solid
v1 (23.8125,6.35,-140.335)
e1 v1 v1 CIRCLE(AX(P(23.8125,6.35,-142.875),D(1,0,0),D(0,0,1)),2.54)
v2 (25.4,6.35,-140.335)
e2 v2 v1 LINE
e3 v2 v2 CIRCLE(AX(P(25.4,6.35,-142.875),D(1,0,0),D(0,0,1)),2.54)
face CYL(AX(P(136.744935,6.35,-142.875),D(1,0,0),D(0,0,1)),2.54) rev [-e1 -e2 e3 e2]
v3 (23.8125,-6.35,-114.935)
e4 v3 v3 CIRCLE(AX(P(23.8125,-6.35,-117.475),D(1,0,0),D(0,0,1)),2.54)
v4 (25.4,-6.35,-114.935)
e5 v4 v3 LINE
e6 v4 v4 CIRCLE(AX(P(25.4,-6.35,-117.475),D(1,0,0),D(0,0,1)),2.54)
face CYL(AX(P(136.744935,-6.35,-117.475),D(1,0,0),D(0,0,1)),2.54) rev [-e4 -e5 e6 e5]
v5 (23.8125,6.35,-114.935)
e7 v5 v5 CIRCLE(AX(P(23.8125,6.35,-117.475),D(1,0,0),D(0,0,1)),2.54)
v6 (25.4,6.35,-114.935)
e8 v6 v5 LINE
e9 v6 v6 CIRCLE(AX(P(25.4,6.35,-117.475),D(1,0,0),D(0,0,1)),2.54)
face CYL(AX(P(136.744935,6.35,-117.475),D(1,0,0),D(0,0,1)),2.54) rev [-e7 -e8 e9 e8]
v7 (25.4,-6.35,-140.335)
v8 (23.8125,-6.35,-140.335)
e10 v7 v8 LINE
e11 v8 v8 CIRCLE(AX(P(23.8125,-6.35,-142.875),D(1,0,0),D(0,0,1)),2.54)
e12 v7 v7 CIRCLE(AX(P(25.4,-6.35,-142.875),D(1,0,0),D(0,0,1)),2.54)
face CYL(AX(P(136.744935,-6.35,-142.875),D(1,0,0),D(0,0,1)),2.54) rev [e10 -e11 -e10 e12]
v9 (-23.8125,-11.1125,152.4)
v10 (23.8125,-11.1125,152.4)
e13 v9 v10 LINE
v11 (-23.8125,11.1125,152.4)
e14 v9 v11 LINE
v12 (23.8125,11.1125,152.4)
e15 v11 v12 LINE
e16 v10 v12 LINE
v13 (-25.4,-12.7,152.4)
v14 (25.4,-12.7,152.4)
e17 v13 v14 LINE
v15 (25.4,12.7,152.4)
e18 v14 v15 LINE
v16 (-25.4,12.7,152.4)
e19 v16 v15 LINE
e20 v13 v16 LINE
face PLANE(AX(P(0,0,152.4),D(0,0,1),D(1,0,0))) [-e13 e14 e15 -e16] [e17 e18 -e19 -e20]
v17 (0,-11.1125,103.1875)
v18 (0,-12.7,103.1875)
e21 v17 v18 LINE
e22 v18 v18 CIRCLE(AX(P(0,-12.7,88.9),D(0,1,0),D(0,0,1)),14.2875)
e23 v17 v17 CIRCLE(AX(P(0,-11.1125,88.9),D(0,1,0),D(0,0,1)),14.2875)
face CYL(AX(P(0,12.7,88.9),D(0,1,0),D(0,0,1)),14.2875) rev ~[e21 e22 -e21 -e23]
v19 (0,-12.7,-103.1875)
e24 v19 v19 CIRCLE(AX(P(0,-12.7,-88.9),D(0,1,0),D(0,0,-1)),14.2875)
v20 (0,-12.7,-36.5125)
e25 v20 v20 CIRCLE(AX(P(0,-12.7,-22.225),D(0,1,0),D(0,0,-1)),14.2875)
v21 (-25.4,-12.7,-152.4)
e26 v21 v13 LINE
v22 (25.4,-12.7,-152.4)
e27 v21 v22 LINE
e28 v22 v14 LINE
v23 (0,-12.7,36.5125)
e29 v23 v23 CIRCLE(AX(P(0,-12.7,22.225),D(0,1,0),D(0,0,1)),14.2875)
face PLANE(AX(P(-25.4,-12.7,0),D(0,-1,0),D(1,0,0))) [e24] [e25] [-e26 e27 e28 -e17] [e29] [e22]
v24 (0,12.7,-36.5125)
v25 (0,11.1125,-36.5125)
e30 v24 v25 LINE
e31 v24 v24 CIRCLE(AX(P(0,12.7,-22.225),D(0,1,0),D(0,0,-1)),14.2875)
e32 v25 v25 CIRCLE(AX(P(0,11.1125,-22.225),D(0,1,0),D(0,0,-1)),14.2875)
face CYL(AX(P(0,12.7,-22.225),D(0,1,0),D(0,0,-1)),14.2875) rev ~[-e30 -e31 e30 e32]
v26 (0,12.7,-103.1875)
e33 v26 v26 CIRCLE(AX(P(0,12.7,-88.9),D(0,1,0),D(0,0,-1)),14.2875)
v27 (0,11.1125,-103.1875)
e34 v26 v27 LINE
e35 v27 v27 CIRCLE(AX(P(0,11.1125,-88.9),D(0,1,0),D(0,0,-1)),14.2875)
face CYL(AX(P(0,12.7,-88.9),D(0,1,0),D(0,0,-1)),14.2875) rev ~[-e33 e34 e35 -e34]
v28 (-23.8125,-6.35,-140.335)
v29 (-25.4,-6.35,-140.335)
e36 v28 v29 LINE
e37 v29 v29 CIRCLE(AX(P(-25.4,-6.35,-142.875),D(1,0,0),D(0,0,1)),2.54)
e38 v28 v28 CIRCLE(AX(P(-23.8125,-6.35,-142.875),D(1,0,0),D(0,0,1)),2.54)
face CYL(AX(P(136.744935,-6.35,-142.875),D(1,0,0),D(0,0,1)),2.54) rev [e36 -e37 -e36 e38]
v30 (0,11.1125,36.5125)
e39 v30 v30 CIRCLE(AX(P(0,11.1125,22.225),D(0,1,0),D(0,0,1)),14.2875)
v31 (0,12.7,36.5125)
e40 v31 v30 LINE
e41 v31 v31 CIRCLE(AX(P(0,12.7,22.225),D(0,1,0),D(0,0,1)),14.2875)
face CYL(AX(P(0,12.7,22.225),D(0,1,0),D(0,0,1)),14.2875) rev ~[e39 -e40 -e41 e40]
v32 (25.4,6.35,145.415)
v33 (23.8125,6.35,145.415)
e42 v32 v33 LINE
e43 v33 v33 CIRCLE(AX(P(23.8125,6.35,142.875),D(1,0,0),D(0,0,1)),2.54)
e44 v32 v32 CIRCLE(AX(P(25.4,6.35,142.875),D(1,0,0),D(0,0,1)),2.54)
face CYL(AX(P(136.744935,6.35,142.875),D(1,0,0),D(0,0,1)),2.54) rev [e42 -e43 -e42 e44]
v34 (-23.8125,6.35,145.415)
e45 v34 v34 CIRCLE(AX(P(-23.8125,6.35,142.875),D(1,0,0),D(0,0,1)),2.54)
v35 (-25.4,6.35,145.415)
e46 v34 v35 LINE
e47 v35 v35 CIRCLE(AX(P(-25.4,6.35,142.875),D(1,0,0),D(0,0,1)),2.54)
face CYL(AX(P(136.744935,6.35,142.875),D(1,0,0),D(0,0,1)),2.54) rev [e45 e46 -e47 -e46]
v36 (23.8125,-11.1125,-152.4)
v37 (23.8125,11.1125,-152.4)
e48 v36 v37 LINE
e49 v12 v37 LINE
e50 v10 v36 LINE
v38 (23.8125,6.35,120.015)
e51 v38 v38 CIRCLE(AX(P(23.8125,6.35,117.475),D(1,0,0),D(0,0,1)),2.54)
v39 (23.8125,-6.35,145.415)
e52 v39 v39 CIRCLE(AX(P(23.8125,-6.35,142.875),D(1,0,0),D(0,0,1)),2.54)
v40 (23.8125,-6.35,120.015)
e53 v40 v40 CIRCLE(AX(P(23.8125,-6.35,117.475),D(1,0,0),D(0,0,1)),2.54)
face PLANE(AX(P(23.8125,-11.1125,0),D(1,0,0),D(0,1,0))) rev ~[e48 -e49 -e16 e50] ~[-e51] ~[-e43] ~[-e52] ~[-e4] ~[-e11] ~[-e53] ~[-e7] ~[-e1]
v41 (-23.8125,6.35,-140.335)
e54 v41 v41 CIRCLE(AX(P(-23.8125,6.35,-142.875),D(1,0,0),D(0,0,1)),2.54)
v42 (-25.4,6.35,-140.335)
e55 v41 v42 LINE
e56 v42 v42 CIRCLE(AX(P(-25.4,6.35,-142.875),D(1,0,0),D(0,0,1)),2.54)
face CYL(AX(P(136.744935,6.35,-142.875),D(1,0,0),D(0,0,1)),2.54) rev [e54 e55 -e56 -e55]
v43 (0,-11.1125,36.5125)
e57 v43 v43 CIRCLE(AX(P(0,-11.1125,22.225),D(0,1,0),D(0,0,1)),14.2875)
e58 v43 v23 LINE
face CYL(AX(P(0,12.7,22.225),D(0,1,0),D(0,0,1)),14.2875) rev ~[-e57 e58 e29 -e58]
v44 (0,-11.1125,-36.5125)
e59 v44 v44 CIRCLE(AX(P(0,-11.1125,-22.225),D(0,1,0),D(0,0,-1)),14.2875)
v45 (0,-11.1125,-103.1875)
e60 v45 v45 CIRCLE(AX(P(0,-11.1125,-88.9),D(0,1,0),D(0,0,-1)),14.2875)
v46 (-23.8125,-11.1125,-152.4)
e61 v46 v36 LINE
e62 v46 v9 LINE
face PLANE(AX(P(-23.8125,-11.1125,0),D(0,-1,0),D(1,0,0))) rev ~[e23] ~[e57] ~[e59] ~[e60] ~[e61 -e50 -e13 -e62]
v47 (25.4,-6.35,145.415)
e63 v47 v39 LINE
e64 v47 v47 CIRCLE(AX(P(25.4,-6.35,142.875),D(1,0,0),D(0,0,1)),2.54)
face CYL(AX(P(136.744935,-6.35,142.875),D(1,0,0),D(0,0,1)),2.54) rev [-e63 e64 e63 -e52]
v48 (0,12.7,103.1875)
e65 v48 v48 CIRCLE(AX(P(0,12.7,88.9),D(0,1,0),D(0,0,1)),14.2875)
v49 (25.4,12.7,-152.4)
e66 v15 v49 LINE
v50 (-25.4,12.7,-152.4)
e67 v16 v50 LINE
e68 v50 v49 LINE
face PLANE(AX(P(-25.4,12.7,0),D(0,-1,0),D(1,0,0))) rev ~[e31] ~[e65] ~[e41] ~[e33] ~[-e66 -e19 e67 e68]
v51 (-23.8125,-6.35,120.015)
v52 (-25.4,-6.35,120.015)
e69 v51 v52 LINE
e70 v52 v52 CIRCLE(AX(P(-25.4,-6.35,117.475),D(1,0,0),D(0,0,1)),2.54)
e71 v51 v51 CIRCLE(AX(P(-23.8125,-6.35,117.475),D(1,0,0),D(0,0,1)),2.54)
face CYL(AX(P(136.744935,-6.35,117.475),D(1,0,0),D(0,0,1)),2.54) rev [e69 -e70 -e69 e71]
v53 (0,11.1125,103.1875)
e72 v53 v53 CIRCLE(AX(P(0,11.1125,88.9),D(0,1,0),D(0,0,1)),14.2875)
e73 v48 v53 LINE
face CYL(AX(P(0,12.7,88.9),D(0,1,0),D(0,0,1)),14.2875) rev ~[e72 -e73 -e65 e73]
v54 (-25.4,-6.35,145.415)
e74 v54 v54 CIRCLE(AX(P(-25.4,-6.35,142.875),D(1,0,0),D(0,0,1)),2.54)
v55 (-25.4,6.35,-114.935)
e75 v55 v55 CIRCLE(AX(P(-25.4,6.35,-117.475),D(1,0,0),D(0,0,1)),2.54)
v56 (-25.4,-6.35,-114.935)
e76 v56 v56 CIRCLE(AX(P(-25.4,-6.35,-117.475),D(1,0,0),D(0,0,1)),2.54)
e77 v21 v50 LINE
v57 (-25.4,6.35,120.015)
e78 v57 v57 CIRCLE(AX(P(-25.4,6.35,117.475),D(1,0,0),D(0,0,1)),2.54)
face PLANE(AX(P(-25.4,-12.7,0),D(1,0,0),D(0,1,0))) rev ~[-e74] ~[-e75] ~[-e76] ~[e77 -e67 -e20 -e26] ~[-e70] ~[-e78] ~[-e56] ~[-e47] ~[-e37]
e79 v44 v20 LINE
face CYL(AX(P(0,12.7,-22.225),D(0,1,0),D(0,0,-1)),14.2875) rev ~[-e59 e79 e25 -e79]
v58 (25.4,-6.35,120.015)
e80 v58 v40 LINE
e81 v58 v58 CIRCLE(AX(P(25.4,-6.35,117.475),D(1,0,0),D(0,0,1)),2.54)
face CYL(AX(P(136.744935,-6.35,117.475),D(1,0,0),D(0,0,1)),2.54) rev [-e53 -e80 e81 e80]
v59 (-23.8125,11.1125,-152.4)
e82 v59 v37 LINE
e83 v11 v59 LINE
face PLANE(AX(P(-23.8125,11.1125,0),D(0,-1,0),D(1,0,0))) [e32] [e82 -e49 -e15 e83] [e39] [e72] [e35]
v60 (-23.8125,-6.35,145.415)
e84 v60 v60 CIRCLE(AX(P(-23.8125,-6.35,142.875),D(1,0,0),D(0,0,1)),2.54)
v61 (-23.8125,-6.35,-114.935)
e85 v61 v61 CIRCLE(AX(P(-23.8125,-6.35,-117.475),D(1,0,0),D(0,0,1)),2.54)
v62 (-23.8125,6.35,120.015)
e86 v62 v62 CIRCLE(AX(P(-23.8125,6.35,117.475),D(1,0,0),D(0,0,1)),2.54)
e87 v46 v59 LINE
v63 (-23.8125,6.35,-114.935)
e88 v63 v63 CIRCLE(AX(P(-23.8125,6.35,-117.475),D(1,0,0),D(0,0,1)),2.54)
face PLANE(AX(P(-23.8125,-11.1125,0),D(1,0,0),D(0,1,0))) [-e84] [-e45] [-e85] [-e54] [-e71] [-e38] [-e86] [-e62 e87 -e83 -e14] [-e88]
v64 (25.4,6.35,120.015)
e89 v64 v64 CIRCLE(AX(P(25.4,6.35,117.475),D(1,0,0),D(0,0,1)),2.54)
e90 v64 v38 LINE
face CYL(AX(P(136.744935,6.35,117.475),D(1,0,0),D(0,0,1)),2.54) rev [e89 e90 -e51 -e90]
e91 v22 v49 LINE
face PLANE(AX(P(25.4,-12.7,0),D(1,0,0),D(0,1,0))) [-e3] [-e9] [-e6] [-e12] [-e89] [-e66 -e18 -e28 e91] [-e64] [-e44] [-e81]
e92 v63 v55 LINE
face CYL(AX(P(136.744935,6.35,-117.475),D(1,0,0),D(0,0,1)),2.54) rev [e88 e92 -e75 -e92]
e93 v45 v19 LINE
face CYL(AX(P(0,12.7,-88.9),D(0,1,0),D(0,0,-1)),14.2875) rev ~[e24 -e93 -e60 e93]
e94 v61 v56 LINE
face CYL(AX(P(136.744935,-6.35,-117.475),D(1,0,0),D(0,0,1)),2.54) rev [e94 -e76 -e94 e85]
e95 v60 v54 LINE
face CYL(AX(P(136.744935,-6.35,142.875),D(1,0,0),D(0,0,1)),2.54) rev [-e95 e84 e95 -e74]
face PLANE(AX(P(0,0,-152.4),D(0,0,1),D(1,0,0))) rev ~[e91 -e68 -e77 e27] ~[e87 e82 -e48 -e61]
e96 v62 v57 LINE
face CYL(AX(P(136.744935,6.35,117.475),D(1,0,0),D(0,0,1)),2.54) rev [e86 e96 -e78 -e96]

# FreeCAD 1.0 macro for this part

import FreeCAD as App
import Part
import Sketcher

V = App.Vector
Q = App.Units.Quantity

doc = App.newDocument("Part")
body = doc.addObject("PartDesign::Body", "Body")

sketch1 = body.newObject("Sketcher::SketchObject", "Sketch")
sketch1.AttachmentSupport = (doc.getObject("XY_Plane"), [""])
sketch1.MapMode = "FlatFace"
sketch1.addGeometry([
    Part.LineSegment(V(-25.4, 12.7, 0), V(-25.4, -12.7, 0)),
    Part.LineSegment(V(-25.4, -12.7, 0), V(25.4, -12.7, 0)),
    Part.LineSegment(V(25.4, -12.7, 0), V(25.4, 12.7, 0)),
    Part.LineSegment(V(25.4, 12.7, 0), V(-25.4, 12.7, 0)),
    Part.LineSegment(V(23.8125, -11.1125, 0), V(-23.8125, -11.1125, 0)),
    Part.LineSegment(V(-23.8125, -11.1125, 0), V(-23.8125, 11.1125, 0)),
    Part.LineSegment(V(-23.8125, 11.1125, 0), V(23.8125, 11.1125, 0)),
    Part.LineSegment(V(23.8125, 11.1125, 0), V(23.8125, -11.1125, 0)),
], False)
sketch1.addConstraint([
    Sketcher.Constraint("Coincident", 0, 2, 1, 1),
    Sketcher.Constraint("Coincident", 1, 2, 2, 1),
    Sketcher.Constraint("Coincident", 2, 2, 3, 1),
    Sketcher.Constraint("Coincident", 3, 2, 0, 1),
    Sketcher.Constraint("Coincident", 4, 2, 5, 1),
    Sketcher.Constraint("Coincident", 5, 2, 6, 1),
    Sketcher.Constraint("Coincident", 6, 2, 7, 1),
    Sketcher.Constraint("Coincident", 7, 2, 4, 1),
    Sketcher.Constraint("Vertical", 0),
    Sketcher.Constraint("Horizontal", 1),
    Sketcher.Constraint("Vertical", 2),
    Sketcher.Constraint("Horizontal", 3),
    Sketcher.Constraint("Horizontal", 4),
    Sketcher.Constraint("Vertical", 5),
    Sketcher.Constraint("Horizontal", 6),
    Sketcher.Constraint("Vertical", 7),
    Sketcher.Constraint("Symmetric", 0, 2, 2, 2, -1, 1),
    Sketcher.Constraint("Symmetric", 4, 2, 6, 2, -1, 1),
    Sketcher.Constraint("DistanceX", 1, 1, 1, 2, Q("2 in")),
    Sketcher.Constraint("DistanceY", 0, 2, 0, 1, Q("1 in")),
    Sketcher.Constraint("DistanceX", 4, 2, 4, 1, Q("1.875 in")),
    Sketcher.Constraint("DistanceY", 5, 1, 5, 2, Q("0.875 in")),
])
pad1 = body.newObject("PartDesign::Pad", "Pad")
pad1.Profile = sketch1
pad1.Length = Q("12 in")
pad1.Midplane = True

sketch2 = body.newObject("Sketcher::SketchObject", "Sketch001")
sketch2.AttachmentSupport = (doc.getObject("XZ_Plane"), [""])
sketch2.MapMode = "FlatFace"
sketch2.AttachmentOffset = App.Placement(V(0, 0, -0.5 * 25.4), App.Rotation())
sketch2.addGeometry([
    Part.Circle(V(0, 88.9, 0), V(0, 0, 1), 14.2875),
    Part.Circle(V(0, 22.225, 0), V(0, 0, 1), 14.2875),
    Part.Circle(V(0, -22.225, 0), V(0, 0, 1), 14.2875),
    Part.Circle(V(0, -88.9, 0), V(0, 0, 1), 14.2875),
], False)
sketch2.addConstraint([
    Sketcher.Constraint("Equal", 0, 1),
    Sketcher.Constraint("Equal", 1, 2),
    Sketcher.Constraint("Equal", 2, 3),
    Sketcher.Constraint("Symmetric", 1, 3, 2, 3, -1, 1),
    Sketcher.Constraint("Symmetric", 0, 3, 3, 3, -1, 1),
    Sketcher.Constraint("PointOnObject", 0, 3, -2),
    Sketcher.Constraint("PointOnObject", 1, 3, -2),
    Sketcher.Constraint("Diameter", 0, Q("1.125 in")),
    Sketcher.Constraint("DistanceY", 3, 3, 0, 3, Q("7 in")),
    Sketcher.Constraint("DistanceY", 2, 3, 1, 3, Q("1.75 in")),
])
pocket1 = body.newObject("PartDesign::Pocket", "Pocket")
pocket1.Profile = sketch2
pocket1.Type = "ThroughAll"
pocket1.Reversed = True

sketch3 = body.newObject("Sketcher::SketchObject", "Sketch002")
sketch3.AttachmentSupport = (doc.getObject("YZ_Plane"), [""])
sketch3.MapMode = "FlatFace"
sketch3.AttachmentOffset = App.Placement(V(0, 0, -1 * 25.4), App.Rotation())
sketch3.addGeometry([
    Part.Circle(V(6.35, -142.875, 0), V(0, 0, 1), 2.54),
    Part.Circle(V(-6.35, -142.875, 0), V(0, 0, 1), 2.54),
    Part.Circle(V(6.35, -117.475, 0), V(0, 0, 1), 2.54),
    Part.Circle(V(-6.35, -117.475, 0), V(0, 0, 1), 2.54),
    Part.Circle(V(-6.35, 117.475, 0), V(0, 0, 1), 2.54),
    Part.Circle(V(6.35, 117.475, 0), V(0, 0, 1), 2.54),
    Part.Circle(V(-6.35, 142.875, 0), V(0, 0, 1), 2.54),
    Part.Circle(V(6.35, 142.875, 0), V(0, 0, 1), 2.54),
], False)
sketch3.addConstraint([
    Sketcher.Constraint("Equal", 0, 1),
    Sketcher.Constraint("Equal", 1, 2),
    Sketcher.Constraint("Equal", 2, 3),
    Sketcher.Constraint("Equal", 3, 4),
    Sketcher.Constraint("Equal", 4, 5),
    Sketcher.Constraint("Equal", 5, 6),
    Sketcher.Constraint("Equal", 6, 7),
    Sketcher.Constraint("Symmetric", 2, 3, 4, 3, -1, 1),
    Sketcher.Constraint("Symmetric", 3, 3, 5, 3, -1, 1),
    Sketcher.Constraint("Symmetric", 0, 3, 6, 3, -1, 1),
    Sketcher.Constraint("Symmetric", 1, 3, 7, 3, -1, 1),
    Sketcher.Constraint("Symmetric", 0, 3, 1, 3, -2),
    Sketcher.Constraint("Symmetric", 2, 3, 3, 3, -2),
    Sketcher.Constraint("Vertical", 0, 3, 2, 3),
    Sketcher.Constraint("Diameter", 0, Q("0.2 in")),
    Sketcher.Constraint("DistanceY", 0, 3, 2, 3, Q("1 in")),
    Sketcher.Constraint("DistanceX", 1, 3, 0, 3, Q("0.5 in")),
    Sketcher.Constraint("DistanceY", 3, 3, 4, 3, Q("9.25 in")),
])
pocket2 = body.newObject("PartDesign::Pocket", "Pocket001")
pocket2.Profile = sketch3
pocket2.Type = "ThroughAll"
pocket2.Midplane = True

doc.recompute()
